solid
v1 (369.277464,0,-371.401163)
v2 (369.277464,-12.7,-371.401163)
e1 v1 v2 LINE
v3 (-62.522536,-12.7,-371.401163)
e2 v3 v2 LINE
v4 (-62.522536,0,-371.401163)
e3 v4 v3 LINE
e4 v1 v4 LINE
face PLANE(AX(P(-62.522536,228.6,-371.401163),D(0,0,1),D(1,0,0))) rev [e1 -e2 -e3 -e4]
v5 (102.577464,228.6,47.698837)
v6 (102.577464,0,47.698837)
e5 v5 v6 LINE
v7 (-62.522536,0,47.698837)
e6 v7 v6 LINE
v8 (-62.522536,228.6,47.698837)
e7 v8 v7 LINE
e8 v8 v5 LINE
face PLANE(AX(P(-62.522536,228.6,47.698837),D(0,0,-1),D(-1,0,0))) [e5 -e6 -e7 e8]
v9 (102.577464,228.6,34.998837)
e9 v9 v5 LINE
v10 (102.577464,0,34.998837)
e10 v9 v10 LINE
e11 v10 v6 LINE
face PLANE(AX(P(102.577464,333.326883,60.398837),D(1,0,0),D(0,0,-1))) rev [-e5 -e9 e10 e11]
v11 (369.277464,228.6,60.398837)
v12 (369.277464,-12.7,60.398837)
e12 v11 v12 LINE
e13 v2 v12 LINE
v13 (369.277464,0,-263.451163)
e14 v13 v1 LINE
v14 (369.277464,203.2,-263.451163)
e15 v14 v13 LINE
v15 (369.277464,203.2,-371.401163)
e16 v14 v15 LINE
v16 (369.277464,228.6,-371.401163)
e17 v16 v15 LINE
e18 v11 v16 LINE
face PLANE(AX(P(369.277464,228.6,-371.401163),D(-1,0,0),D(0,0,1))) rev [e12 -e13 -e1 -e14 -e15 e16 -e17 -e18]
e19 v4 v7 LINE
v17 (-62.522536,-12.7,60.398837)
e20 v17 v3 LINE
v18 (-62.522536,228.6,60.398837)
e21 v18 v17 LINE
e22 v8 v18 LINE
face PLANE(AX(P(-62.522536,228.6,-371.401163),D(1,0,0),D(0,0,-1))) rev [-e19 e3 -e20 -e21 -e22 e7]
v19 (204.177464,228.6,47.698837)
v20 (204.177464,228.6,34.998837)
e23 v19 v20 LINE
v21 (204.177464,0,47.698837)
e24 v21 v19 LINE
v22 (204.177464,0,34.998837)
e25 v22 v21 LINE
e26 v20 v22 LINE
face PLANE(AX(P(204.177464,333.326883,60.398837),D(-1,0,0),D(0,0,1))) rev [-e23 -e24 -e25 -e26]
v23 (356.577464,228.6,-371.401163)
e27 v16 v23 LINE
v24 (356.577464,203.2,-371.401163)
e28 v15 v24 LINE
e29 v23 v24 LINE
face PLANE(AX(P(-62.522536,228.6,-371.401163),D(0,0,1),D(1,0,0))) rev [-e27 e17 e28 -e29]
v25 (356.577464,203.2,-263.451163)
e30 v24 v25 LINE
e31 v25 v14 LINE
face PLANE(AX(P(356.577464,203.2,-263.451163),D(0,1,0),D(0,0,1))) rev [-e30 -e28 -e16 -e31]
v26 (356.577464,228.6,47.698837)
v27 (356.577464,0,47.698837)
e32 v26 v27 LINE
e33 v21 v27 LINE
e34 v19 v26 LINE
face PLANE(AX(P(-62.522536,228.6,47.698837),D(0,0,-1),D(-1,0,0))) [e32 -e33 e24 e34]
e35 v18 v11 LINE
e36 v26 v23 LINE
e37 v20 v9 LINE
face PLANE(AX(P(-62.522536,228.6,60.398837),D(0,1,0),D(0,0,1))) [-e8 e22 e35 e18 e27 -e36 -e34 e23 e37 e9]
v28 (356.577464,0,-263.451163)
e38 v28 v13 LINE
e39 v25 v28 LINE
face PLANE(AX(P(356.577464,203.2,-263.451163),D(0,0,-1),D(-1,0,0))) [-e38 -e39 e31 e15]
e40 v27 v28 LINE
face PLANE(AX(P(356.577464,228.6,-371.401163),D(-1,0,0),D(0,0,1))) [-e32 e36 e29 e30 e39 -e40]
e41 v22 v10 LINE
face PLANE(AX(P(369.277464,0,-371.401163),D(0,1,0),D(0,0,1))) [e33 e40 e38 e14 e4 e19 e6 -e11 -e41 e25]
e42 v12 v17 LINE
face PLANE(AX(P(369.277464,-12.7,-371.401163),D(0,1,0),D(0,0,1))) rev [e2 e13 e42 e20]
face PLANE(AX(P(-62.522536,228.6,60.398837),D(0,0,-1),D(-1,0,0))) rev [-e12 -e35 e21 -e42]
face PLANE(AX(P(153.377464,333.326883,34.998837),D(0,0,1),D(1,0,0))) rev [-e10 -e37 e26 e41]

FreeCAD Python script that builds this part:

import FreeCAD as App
import Part
import Sketcher
from FreeCAD import Vector
Q = App.Units.Quantity

doc = App.newDocument("Part")
params = doc.addObject("Spreadsheet::Sheet", "Params")
for row, (alias, value) in enumerate([
    ("sketch1_width", "17 in"),
    ("sketch1_width2", "16 in"),
    ("pad1_length", "9 in"),
    ("sketch2_width", "17 in"),
    ("pad2_length", "0.5 in"),
    ("sketch3_width", "16 in"),
    ("sketch3_width2", "16.5 in"),
    ("sketch4_width", "4 in"),
    ("sketch4_height", "1 in"),
    ("pad3_length", "9 in"),
    ("sketch5_width", "0.5 in"),
    ("sketch5_height", "4.25 in"),
    ("pocket2_length", "8 in"),
], start=1):
    params.set(f"A{row}", alias)
    params.set(f"B{row}", "=" + value)
    params.setAlias(f"B{row}", alias)

body = doc.addObject("PartDesign::Body", "Body")

sketch1 = body.newObject("Sketcher::SketchObject", "Sketch")
sketch1.AttachmentSupport = (doc.getObject("XZ_Plane"), [""])
sketch1.MapMode = "FlatFace"
sketch1.addGeometry([
    Part.LineSegment(Vector(-63, -371, 0), Vector(-63, 60, 0)),
    Part.LineSegment(Vector(-63, 60, 0), Vector(369, 60, 0)),
    Part.LineSegment(Vector(369, 60, 0), Vector(369, -371, 0)),
    Part.LineSegment(Vector(369, -371, 0), Vector(-63, -371, 0)),
    Part.LineSegment(Vector(357, 48, 0), Vector(-50, 48, 0)),
    Part.LineSegment(Vector(-50, 48, 0), Vector(-50, -359, 0)),
    Part.LineSegment(Vector(-50, -359, 0), Vector(357, -359, 0)),
    Part.LineSegment(Vector(357, -359, 0), Vector(357, 48, 0)),
], False)
sketch1.addConstraint([
    Sketcher.Constraint("Coincident", 0, 2, 1, 1),
    Sketcher.Constraint("Coincident", 1, 2, 2, 1),
    Sketcher.Constraint("Coincident", 2, 2, 3, 1),
    Sketcher.Constraint("Coincident", 3, 2, 0, 1),
    Sketcher.Constraint("Coincident", 4, 2, 5, 1),
    Sketcher.Constraint("Coincident", 5, 2, 6, 1),
    Sketcher.Constraint("Coincident", 6, 2, 7, 1),
    Sketcher.Constraint("Coincident", 7, 2, 4, 1),
    Sketcher.Constraint("Vertical", 0),
    Sketcher.Constraint("Horizontal", 1),
    Sketcher.Constraint("Vertical", 2),
    Sketcher.Constraint("Horizontal", 3),
    Sketcher.Constraint("Horizontal", 4),
    Sketcher.Constraint("Vertical", 5),
    Sketcher.Constraint("Horizontal", 6),
    Sketcher.Constraint("Vertical", 7),
    Sketcher.Constraint("Equal", 3, 0),
    Sketcher.Constraint("Equal", 6, 5),
    Sketcher.Constraint("DistanceX", 1, 1, 1, 2, Q("17 in")),
    Sketcher.Constraint("DistanceX", 4, 2, 4, 1, Q("16 in")),
    Sketcher.Constraint("DistanceX", 0, 2, 4, 2, Q("0.5 in")),
    Sketcher.Constraint("DistanceY", 4, 2, 0, 2, Q("0.5 in")),
    Sketcher.Constraint("DistanceX", 0, 2, -1, 1, 62.522536),
    Sketcher.Constraint("DistanceY", -1, 1, 0, 2, 60.398837),
])
sketch1.setExpression("Constraints[18]", "Params.sketch1_width")
sketch1.setExpression("Constraints[19]", "Params.sketch1_width2")
pad1 = body.newObject("PartDesign::Pad", "Pad")
pad1.Profile = sketch1
pad1.setExpression("Length", "Params.pad1_length")
pad1.Reversed = True

sketch2 = body.newObject("Sketcher::SketchObject", "Sketch001")
sketch2.AttachmentSupport = (doc.getObject("XZ_Plane"), [""])
sketch2.MapMode = "FlatFace"
sketch2.addGeometry([
    Part.LineSegment(Vector(-63, 60, 0), Vector(-63, -371, 0)),
    Part.LineSegment(Vector(-63, -371, 0), Vector(369, -371, 0)),
    Part.LineSegment(Vector(369, -371, 0), Vector(369, 60, 0)),
    Part.LineSegment(Vector(369, 60, 0), Vector(-63, 60, 0)),
], False)
sketch2.addConstraint([
    Sketcher.Constraint("Coincident", 0, 2, 1, 1),
    Sketcher.Constraint("Coincident", 1, 2, 2, 1),
    Sketcher.Constraint("Coincident", 2, 2, 3, 1),
    Sketcher.Constraint("Coincident", 3, 2, 0, 1),
    Sketcher.Constraint("Vertical", 0),
    Sketcher.Constraint("Horizontal", 1),
    Sketcher.Constraint("Vertical", 2),
    Sketcher.Constraint("Horizontal", 3),
    Sketcher.Constraint("Equal", 3, 0),
    Sketcher.Constraint("DistanceX", 1, 1, 1, 2, Q("17 in")),
    Sketcher.Constraint("DistanceX", 0, 2, -1, 1, 62.522536),
    Sketcher.Constraint("DistanceY", 0, 2, -1, 1, 371.401163),
])
sketch2.setExpression("Constraints[9]", "Params.sketch2_width")
pad2 = body.newObject("PartDesign::Pad", "Pad001")
pad2.Profile = sketch2
pad2.setExpression("Length", "Params.pad2_length")

sketch3 = body.newObject("Sketcher::SketchObject", "Sketch002")
sketch3.AttachmentSupport = (doc.getObject("XZ_Plane"), [""])
sketch3.MapMode = "FlatFace"
sketch3.addGeometry([
    Part.LineSegment(Vector(357, -371, 0), Vector(-63, -371, 0)),
    Part.LineSegment(Vector(-63, -371, 0), Vector(-63, 48, 0)),
    Part.LineSegment(Vector(-63, 48, 0), Vector(-50, 48, 0)),
    Part.LineSegment(Vector(-50, 48, 0), Vector(-50, -359, 0)),
    Part.LineSegment(Vector(-50, -359, 0), Vector(357, -359, 0)),
    Part.LineSegment(Vector(357, -359, 0), Vector(357, -371, 0)),
], False)
sketch3.addConstraint([
    Sketcher.Constraint("Coincident", 0, 2, 1, 1),
    Sketcher.Constraint("Coincident", 1, 2, 2, 1),
    Sketcher.Constraint("Coincident", 2, 2, 3, 1),
    Sketcher.Constraint("Coincident", 3, 2, 4, 1),
    Sketcher.Constraint("Coincident", 4, 2, 5, 1),
    Sketcher.Constraint("Coincident", 5, 2, 0, 1),
    Sketcher.Constraint("Horizontal", 0),
    Sketcher.Constraint("Vertical", 1),
    Sketcher.Constraint("Horizontal", 2),
    Sketcher.Constraint("Vertical", 3),
    Sketcher.Constraint("Horizontal", 4),
    Sketcher.Constraint("Vertical", 5),
    Sketcher.Constraint("Equal", 0, 1),
    Sketcher.Constraint("Equal", 4, 3),
    Sketcher.Constraint("DistanceX", 4, 1, 4, 2, Q("16 in")),
    Sketcher.Constraint("DistanceX", 0, 2, 0, 1, Q("16.5 in")),
    Sketcher.Constraint("DistanceX", 0, 2, -1, 1, 62.522536),
    Sketcher.Constraint("DistanceY", 0, 2, -1, 1, 371.401163),
])
sketch3.setExpression("Constraints[14]", "Params.sketch3_width")
sketch3.setExpression("Constraints[15]", "Params.sketch3_width2")
pocket1 = body.newObject("PartDesign::Pocket", "Pocket")
pocket1.Profile = sketch3
pocket1.Type = "ThroughAll"

sketch4 = body.newObject("Sketcher::SketchObject", "Sketch003")
sketch4.AttachmentSupport = (doc.getObject("XZ_Plane"), [""])
sketch4.MapMode = "FlatFace"
sketch4.addGeometry([
    Part.LineSegment(Vector(204, 60, 0), Vector(204, 35, 0)),
    Part.LineSegment(Vector(204, 35, 0), Vector(103, 35, 0)),
    Part.LineSegment(Vector(103, 35, 0), Vector(103, 60, 0)),
    Part.LineSegment(Vector(103, 60, 0), Vector(204, 60, 0)),
], False)
sketch4.addConstraint([
    Sketcher.Constraint("Coincident", 0, 2, 1, 1),
    Sketcher.Constraint("Coincident", 1, 2, 2, 1),
    Sketcher.Constraint("Coincident", 2, 2, 3, 1),
    Sketcher.Constraint("Coincident", 3, 2, 0, 1),
    Sketcher.Constraint("Vertical", 0),
    Sketcher.Constraint("Horizontal", 1),
    Sketcher.Constraint("Vertical", 2),
    Sketcher.Constraint("Horizontal", 3),
    Sketcher.Constraint("DistanceX", 1, 2, 1, 1, Q("4 in")),
    Sketcher.Constraint("DistanceY", 0, 2, 0, 1, Q("1 in")),
    Sketcher.Constraint("DistanceX", -1, 1, 0, 2, 204.177464),
    Sketcher.Constraint("DistanceY", -1, 1, 0, 2, 34.998837),
])
sketch4.setExpression("Constraints[8]", "Params.sketch4_width")
sketch4.setExpression("Constraints[9]", "Params.sketch4_height")
pad3 = body.newObject("PartDesign::Pad", "Pad002")
pad3.Profile = sketch4
pad3.setExpression("Length", "Params.pad3_length")
pad3.Reversed = True

sketch5 = body.newObject("Sketcher::SketchObject", "Sketch004")
sketch5.AttachmentSupport = (doc.getObject("XZ_Plane"), [""])
sketch5.MapMode = "FlatFace"
sketch5.addGeometry([
    Part.LineSegment(Vector(369, -263, 0), Vector(369, -371, 0)),
    Part.LineSegment(Vector(369, -371, 0), Vector(357, -371, 0)),
    Part.LineSegment(Vector(357, -371, 0), Vector(357, -263, 0)),
    Part.LineSegment(Vector(357, -263, 0), Vector(369, -263, 0)),
], False)
sketch5.addConstraint([
    Sketcher.Constraint("Coincident", 0, 2, 1, 1),
    Sketcher.Constraint("Coincident", 1, 2, 2, 1),
    Sketcher.Constraint("Coincident", 2, 2, 3, 1),
    Sketcher.Constraint("Coincident", 3, 2, 0, 1),
    Sketcher.Constraint("Vertical", 0),
    Sketcher.Constraint("Horizontal", 1),
    Sketcher.Constraint("Vertical", 2),
    Sketcher.Constraint("Horizontal", 3),
    Sketcher.Constraint("DistanceX", 1, 2, 1, 1, Q("0.5 in")),
    Sketcher.Constraint("DistanceY", 0, 2, 0, 1, Q("4.25 in")),
    Sketcher.Constraint("DistanceX", -1, 1, 0, 2, 369.277464),
    Sketcher.Constraint("DistanceY", 0, 2, -1, 1, 371.401163),
])
sketch5.setExpression("Constraints[8]", "Params.sketch5_width")
sketch5.setExpression("Constraints[9]", "Params.sketch5_height")
pocket2 = body.newObject("PartDesign::Pocket", "Pocket001")
pocket2.Profile = sketch5
pocket2.setExpression("Length", "Params.pocket2_length")

doc.recompute()
